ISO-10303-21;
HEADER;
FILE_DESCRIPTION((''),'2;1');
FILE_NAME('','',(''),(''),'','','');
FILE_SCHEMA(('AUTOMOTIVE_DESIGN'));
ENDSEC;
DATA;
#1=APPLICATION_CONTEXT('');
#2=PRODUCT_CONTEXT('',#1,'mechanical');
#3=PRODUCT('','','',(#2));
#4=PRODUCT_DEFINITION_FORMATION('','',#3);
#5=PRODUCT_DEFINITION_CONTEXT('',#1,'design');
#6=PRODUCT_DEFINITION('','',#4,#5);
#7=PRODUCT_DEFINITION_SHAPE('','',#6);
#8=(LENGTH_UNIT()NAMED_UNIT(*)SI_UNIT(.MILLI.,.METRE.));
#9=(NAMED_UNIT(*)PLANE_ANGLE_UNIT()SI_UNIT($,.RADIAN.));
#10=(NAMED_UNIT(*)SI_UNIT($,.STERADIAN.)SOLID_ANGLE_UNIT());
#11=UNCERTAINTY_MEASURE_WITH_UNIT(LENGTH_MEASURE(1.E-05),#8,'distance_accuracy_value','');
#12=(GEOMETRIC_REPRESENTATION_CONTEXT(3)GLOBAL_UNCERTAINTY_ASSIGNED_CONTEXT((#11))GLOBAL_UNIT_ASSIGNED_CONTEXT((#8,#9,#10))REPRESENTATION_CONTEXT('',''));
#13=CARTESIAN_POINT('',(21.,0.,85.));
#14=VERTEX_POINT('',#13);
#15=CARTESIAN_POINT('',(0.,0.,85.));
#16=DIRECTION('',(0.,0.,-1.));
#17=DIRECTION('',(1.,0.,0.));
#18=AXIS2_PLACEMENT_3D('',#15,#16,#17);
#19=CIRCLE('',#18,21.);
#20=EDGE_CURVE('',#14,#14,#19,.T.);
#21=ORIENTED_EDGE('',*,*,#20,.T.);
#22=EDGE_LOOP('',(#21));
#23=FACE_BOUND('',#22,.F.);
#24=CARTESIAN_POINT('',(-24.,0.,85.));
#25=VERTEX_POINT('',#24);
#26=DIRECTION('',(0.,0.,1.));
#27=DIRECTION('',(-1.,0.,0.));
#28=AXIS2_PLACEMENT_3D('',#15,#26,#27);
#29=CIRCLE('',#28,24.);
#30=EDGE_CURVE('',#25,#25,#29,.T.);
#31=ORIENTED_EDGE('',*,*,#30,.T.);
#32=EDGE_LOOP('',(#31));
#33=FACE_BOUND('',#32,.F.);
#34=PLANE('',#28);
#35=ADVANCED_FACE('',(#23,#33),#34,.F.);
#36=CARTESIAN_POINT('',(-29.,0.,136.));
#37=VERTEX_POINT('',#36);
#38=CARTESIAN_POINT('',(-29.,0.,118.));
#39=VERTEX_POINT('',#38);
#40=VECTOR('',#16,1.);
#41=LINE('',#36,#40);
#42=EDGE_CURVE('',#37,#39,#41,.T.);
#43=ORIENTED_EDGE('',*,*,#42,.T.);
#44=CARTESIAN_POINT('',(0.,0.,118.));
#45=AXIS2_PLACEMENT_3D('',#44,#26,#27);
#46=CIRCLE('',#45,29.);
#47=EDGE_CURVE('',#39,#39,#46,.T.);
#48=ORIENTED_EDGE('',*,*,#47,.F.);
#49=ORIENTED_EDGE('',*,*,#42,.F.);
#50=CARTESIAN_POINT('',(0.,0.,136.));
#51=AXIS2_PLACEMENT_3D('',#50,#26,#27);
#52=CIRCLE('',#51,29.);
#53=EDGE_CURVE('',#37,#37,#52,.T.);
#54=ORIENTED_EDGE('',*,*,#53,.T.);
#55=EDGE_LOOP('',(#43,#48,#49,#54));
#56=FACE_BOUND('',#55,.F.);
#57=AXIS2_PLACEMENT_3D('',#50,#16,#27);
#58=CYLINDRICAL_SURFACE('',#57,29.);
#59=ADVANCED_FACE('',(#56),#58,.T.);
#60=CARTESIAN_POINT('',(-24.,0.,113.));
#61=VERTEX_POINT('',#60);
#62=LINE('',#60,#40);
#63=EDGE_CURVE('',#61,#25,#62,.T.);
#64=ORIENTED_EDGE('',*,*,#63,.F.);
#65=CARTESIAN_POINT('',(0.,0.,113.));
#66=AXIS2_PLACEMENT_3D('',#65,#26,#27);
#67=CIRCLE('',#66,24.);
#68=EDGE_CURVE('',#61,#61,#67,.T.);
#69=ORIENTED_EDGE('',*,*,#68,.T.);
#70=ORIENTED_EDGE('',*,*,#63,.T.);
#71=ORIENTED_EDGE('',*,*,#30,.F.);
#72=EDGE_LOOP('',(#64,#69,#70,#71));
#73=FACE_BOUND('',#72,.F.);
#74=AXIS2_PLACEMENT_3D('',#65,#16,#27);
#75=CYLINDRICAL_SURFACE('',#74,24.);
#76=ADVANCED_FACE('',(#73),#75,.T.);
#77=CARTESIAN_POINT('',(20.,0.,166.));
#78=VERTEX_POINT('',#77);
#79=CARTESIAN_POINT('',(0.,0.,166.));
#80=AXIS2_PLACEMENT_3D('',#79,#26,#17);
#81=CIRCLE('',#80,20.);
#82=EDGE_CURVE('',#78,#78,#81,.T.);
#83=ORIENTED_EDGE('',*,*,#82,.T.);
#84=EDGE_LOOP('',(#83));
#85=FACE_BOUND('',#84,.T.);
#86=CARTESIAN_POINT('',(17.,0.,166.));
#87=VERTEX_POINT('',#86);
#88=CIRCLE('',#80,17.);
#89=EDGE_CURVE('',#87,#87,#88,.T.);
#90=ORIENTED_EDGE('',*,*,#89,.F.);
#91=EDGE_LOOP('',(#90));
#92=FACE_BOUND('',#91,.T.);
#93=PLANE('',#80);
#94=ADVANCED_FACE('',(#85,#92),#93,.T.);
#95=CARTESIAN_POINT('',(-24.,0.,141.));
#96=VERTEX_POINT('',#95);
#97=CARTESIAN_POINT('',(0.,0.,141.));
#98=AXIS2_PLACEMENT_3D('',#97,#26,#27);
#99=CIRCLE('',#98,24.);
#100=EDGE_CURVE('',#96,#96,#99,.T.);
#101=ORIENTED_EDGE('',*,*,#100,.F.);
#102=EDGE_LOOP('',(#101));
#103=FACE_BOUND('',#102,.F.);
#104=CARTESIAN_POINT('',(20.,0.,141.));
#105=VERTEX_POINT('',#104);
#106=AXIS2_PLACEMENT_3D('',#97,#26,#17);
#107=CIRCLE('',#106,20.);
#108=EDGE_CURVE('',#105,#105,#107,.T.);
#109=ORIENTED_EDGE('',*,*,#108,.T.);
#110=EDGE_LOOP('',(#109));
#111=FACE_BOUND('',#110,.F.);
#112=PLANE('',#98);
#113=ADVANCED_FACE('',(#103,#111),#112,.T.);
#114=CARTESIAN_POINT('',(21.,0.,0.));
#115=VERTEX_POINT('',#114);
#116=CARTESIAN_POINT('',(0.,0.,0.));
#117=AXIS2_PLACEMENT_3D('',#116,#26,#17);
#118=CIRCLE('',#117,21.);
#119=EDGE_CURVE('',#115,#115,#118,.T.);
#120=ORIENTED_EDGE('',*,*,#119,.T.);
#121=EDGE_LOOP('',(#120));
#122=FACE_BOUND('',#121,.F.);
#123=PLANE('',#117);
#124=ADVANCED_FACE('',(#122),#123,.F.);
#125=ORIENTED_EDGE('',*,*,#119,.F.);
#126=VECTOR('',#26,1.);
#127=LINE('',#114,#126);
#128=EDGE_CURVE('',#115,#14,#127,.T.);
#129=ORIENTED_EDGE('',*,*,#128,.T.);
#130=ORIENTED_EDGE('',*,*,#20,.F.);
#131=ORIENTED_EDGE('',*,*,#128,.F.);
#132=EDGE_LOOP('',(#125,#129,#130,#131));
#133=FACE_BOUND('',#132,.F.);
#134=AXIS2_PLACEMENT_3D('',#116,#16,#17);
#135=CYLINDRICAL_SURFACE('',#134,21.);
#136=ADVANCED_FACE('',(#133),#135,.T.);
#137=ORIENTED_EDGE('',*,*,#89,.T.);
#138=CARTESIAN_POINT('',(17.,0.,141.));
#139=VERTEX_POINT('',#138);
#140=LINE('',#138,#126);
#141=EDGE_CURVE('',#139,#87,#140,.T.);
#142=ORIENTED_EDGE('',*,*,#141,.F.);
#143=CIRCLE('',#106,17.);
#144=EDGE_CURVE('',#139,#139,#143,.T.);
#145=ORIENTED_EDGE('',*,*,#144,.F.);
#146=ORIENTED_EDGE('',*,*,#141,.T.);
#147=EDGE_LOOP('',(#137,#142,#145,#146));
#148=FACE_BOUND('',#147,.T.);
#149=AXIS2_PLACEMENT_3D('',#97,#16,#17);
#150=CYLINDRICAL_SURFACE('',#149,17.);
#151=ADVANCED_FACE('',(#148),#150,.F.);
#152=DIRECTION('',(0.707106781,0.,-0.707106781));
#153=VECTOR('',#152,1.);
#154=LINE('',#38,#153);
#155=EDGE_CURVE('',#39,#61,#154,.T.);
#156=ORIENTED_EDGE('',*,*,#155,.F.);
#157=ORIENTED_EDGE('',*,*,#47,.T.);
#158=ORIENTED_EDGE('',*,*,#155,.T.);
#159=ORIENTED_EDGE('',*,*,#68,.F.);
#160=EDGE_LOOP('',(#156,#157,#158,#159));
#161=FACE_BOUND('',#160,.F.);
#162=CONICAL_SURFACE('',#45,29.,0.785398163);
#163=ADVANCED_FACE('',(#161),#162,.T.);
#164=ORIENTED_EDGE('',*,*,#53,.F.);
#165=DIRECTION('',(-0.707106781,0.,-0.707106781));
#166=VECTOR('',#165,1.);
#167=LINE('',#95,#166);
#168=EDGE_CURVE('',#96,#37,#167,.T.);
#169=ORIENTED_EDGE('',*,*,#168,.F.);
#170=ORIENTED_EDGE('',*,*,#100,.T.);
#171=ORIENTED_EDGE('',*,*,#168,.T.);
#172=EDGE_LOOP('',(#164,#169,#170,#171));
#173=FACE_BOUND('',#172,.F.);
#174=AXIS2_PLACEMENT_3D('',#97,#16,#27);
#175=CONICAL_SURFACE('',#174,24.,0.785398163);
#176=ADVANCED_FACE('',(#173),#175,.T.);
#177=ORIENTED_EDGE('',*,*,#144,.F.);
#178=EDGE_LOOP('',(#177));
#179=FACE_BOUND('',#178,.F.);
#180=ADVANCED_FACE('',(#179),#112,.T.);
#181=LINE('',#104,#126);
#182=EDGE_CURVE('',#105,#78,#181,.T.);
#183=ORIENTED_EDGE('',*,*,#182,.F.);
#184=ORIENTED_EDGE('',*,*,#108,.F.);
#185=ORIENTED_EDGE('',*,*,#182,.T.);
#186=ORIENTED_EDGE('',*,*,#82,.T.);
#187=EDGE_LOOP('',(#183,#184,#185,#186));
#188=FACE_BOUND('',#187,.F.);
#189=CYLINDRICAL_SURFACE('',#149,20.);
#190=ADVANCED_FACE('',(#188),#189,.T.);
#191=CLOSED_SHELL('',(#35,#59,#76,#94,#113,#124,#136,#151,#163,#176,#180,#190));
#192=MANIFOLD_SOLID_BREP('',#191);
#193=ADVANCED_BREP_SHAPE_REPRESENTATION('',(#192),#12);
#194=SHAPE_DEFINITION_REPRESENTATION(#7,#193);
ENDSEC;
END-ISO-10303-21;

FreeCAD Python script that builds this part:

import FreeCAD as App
import Part
import Sketcher

V = App.Vector
Q = App.Units.Quantity

doc = App.newDocument("Part")
body = doc.addObject("PartDesign::Body", "Body")

# Sketch on XY plane
sketch1 = body.newObject("Sketcher::SketchObject", "Sketch")
sketch1.AttachmentSupport = (doc.getObject("XY_Plane"), [""])
sketch1.MapMode = "FlatFace"
sketch1.addGeometry(Part.Circle(V(0, 0, 0), V(0, 0, 1), 21), False)
sketch1.addConstraint(Sketcher.Constraint("Coincident", 0, 3, -1, 1))
sketch1.addConstraint(Sketcher.Constraint("Diameter", 0, Q("42 mm")))
pad1 = body.newObject("PartDesign::Pad", "Pad")
pad1.Profile = sketch1
pad1.Length = 100

# Sketch on XZ plane
sketch2 = body.newObject("Sketcher::SketchObject", "Sketch001")
sketch2.AttachmentSupport = (doc.getObject("XZ_Plane"), [""])
sketch2.MapMode = "FlatFace"
sketch2.addGeometry(Part.LineSegment(V(-24, 85, 0), V(0, 85, 0)), False)
sketch2.addGeometry(Part.LineSegment(V(0, 85, 0), V(0, 141, 0)), False)
sketch2.addGeometry(Part.LineSegment(V(0, 141, 0), V(-24, 141, 0)), False)
sketch2.addGeometry(Part.LineSegment(V(-24, 141, 0), V(-29, 136, 0)), False)
sketch2.addGeometry(Part.LineSegment(V(-29, 136, 0), V(-29, 118, 0)), False)
sketch2.addGeometry(Part.LineSegment(V(-29, 118, 0), V(-24, 113, 0)), False)
sketch2.addGeometry(Part.LineSegment(V(-24, 113, 0), V(-24, 85, 0)), False)
sketch2.addConstraint(Sketcher.Constraint("Coincident", 0, 2, 1, 1))
sketch2.addConstraint(Sketcher.Constraint("Coincident", 1, 2, 2, 1))
sketch2.addConstraint(Sketcher.Constraint("Coincident", 2, 2, 3, 1))
sketch2.addConstraint(Sketcher.Constraint("Coincident", 3, 2, 4, 1))
sketch2.addConstraint(Sketcher.Constraint("Coincident", 4, 2, 5, 1))
sketch2.addConstraint(Sketcher.Constraint("Coincident", 5, 2, 6, 1))
sketch2.addConstraint(Sketcher.Constraint("Coincident", 6, 2, 0, 1))
sketch2.addConstraint(Sketcher.Constraint("Horizontal", 0))
sketch2.addConstraint(Sketcher.Constraint("Vertical", 1))
sketch2.addConstraint(Sketcher.Constraint("Horizontal", 2))
sketch2.addConstraint(Sketcher.Constraint("Vertical", 4))
sketch2.addConstraint(Sketcher.Constraint("Vertical", 6))
sketch2.addConstraint(Sketcher.Constraint("PointOnObject", 0, 2, -2))
sketch2.addConstraint(Sketcher.Constraint("Perpendicular", 3, 5))
sketch2.addConstraint(Sketcher.Constraint("Vertical", 2, 2, 5, 2))
sketch2.addConstraint(Sketcher.Constraint("Equal", 3, 5))
sketch2.addConstraint(Sketcher.Constraint("DistanceX", 0, 1, 0, 2, Q("24 mm")))
sketch2.addConstraint(Sketcher.Constraint("DistanceY", 1, 1, 1, 2, Q("56 mm")))
sketch2.addConstraint(Sketcher.Constraint("DistanceY", 4, 2, 4, 1, Q("18 mm")))
sketch2.addConstraint(Sketcher.Constraint("DistanceY", 6, 2, 6, 1, Q("28 mm")))
sketch2.addConstraint(Sketcher.Constraint("DistanceY", -1, 1, 0, 2, Q("85 mm")))
revolution = body.newObject("PartDesign::Revolution", "Revolution")
revolution.Profile = sketch2
revolution.ReferenceAxis = (sketch2, ["V_Axis"])
revolution.Angle = 360

# Sketch on XY plane
sketch3 = body.newObject("Sketcher::SketchObject", "Sketch002")
sketch3.AttachmentSupport = (doc.getObject("XY_Plane"), [""])
sketch3.MapMode = "FlatFace"
sketch3.AttachmentOffset = App.Placement(V(0, 0, 141), App.Rotation())
sketch3.addGeometry(Part.Circle(V(0, 0, 0), V(0, 0, 1), 20), False)
sketch3.addGeometry(Part.Circle(V(0, 0, 0), V(0, 0, 1), 17), False)
sketch3.addConstraint(Sketcher.Constraint("Coincident", 0, 3, -1, 1))
sketch3.addConstraint(Sketcher.Constraint("Coincident", 1, 3, -1, 1))
sketch3.addConstraint(Sketcher.Constraint("Diameter", 0, Q("40 mm")))
sketch3.addConstraint(Sketcher.Constraint("Diameter", 1, Q("34 mm")))
pad2 = body.newObject("PartDesign::Pad", "Pad001")
pad2.Profile = sketch3
pad2.Length = 25

doc.recompute()
